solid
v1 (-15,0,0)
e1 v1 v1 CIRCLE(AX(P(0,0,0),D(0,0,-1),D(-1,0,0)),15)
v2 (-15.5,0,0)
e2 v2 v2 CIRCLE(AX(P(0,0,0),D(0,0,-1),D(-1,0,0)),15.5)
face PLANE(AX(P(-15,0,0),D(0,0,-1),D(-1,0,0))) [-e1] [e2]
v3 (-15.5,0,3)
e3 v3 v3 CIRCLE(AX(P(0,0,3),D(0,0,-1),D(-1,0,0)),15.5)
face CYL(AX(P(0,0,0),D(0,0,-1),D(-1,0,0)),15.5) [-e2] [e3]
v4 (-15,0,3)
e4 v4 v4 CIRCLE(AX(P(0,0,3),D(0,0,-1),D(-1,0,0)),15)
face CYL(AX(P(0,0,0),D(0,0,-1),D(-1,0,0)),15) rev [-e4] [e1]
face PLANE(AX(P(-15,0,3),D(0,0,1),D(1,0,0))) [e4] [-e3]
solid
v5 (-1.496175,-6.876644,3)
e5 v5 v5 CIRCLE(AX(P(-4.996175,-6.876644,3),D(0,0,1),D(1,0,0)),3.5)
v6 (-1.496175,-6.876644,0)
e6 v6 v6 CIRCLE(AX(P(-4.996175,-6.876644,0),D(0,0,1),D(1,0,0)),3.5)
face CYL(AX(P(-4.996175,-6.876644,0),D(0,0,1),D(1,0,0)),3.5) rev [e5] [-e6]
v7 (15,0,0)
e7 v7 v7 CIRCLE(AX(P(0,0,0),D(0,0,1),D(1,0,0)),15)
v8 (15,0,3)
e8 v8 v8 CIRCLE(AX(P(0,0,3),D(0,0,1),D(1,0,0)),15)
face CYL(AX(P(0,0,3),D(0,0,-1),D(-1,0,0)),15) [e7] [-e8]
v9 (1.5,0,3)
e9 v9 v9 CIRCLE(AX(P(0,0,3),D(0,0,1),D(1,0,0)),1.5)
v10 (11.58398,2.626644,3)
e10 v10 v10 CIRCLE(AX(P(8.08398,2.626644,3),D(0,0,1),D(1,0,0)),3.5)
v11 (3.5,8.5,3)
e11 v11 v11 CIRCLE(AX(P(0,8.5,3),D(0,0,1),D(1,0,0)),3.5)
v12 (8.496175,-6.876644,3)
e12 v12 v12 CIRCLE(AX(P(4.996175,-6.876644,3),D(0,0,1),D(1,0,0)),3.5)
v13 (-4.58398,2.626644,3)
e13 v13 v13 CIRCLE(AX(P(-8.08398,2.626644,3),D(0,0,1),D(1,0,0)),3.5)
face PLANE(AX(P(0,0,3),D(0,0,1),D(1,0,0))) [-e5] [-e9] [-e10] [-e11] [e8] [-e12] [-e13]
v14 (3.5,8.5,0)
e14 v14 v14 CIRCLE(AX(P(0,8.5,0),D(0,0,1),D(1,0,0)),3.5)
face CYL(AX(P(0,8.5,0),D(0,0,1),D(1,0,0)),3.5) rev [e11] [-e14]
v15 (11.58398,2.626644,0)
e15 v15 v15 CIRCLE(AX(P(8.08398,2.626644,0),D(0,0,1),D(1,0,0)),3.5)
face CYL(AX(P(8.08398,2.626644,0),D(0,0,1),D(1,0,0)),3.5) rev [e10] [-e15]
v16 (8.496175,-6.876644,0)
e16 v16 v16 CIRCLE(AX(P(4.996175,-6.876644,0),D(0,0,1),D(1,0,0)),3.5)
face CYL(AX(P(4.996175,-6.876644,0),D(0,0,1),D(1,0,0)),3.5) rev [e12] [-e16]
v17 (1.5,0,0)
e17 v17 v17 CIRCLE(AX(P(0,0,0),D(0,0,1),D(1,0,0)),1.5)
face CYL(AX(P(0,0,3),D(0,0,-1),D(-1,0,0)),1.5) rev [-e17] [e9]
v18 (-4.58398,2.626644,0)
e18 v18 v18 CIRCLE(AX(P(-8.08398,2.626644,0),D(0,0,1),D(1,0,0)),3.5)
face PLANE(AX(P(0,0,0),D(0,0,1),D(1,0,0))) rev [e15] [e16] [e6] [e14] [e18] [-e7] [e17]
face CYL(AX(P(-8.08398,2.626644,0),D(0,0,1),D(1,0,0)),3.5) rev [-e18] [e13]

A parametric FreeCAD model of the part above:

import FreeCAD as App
import Part
import Sketcher

V = App.Vector


def add_polygon(sketch, points):
    """Adds a closed chain of lines whose ends are joined by coincident constraints."""
    first, n = sketch.GeometryCount, len(points)
    for a, b in zip(points, points[1:] + points[:1]):
        sketch.addGeometry(Part.LineSegment(App.Vector(*a, 0), App.Vector(*b, 0)), False)
    for i in range(n):
        sketch.addConstraint(Sketcher.Constraint("Coincident", first + i, 2, first + (i + 1) % n, 1))

doc = App.newDocument("Part")
body = doc.addObject("PartDesign::Body", "Body")

# Sketch on XY plane
sketch1 = body.newObject("Sketcher::SketchObject", "Sketch")
sketch1.AttachmentSupport = (doc.getObject("XY_Plane"), [""])
sketch1.MapMode = "FlatFace"
sketch1.addGeometry([
    Part.Circle(V(0, 0, 0), V(0, 0, 1), 15),
    Part.Circle(V(0, 0, 0), V(0, 0, 1), 1.5),
], False)
sketch1.addConstraint([
    Sketcher.Constraint("Coincident", 0, 3, -1, 1),
    Sketcher.Constraint("Coincident", 1, 3, -1, 1),
    Sketcher.Constraint("Diameter", 0, 30.0),
    Sketcher.Constraint("Diameter", 1, 3.0),
])
pad1 = body.newObject("PartDesign::Pad", "Pad")
pad1.Profile = sketch1
pad1.Length = 3

# Sketch on XY plane
sketch2 = body.newObject("Sketcher::SketchObject", "Sketch001")
sketch2.AttachmentSupport = (doc.getObject("XY_Plane"), [""])
sketch2.MapMode = "FlatFace"
sketch2.AttachmentOffset = App.Placement(V(0, 0, 3), App.Rotation())
sketch2.addGeometry([
    Part.Circle(V(0, 8.5, 0), V(0, 0, 1), 3.5),  # 0
    Part.Circle(V(8.08398, 2.626644, 0), V(0, 0, 1), 3.5),  # 1
    Part.Circle(V(4.996175, -6.876644, 0), V(0, 0, 1), 3.5),  # 2
    Part.Circle(V(-4.996175, -6.876644, 0), V(0, 0, 1), 3.5),  # 3
    Part.Circle(V(-8.08398, 2.626644, 0), V(0, 0, 1), 3.5),  # 4
], False)
sketch2.addConstraint([
    Sketcher.Constraint("Equal", 0, 1),
    Sketcher.Constraint("Equal", 1, 2),
    Sketcher.Constraint("Equal", 2, 3),
    Sketcher.Constraint("Equal", 3, 4),
    Sketcher.Constraint("Symmetric", 2, 3, 3, 3, -2),
    Sketcher.Constraint("Symmetric", 1, 3, 4, 3, -2),
    Sketcher.Constraint("PointOnObject", 0, 3, -2),
    Sketcher.Constraint("Diameter", 0, 7.0),
    Sketcher.Constraint("DistanceY", -1, 1, 0, 3, 8.5),
    Sketcher.Constraint("DistanceX", -1, 1, 1, 3, 8.08398),
    Sketcher.Constraint("DistanceY", 2, 3, 1, 3, 9.503289),
    Sketcher.Constraint("DistanceX", 3, 3, 2, 3, 9.992349),
    Sketcher.Constraint("DistanceY", -1, 1, 1, 3, 2.626644),
])
pocket1 = body.newObject("PartDesign::Pocket", "Pocket")
pocket1.Profile = sketch2
pocket1.Type = "ThroughAll"
pocket1.Midplane = True
body2 = doc.addObject("PartDesign::Body", "Body001")

# Sketch on XZ plane
sketch3 = body2.newObject("Sketcher::SketchObject", "Sketch002")
sketch3.AttachmentSupport = (doc.getObject("XZ_Plane001"), [""])
sketch3.MapMode = "FlatFace"
add_polygon(sketch3, [(-15.5, 0), (-15.5, 3), (-15, 3), (-15, 0)])  # lines 0-3
sketch3.addConstraint([
    Sketcher.Constraint("Vertical", 0),
    Sketcher.Constraint("Horizontal", 1),
    Sketcher.Constraint("Vertical", 2),
    Sketcher.Constraint("Horizontal", 3),
    Sketcher.Constraint("PointOnObject", 2, 2, -1),
    Sketcher.Constraint("DistanceY", 0, 1, 0, 2, 3.0),
    Sketcher.Constraint("DistanceX", 1, 1, 1, 2, 0.5),
    Sketcher.Constraint("DistanceX", 1, 2, -1, 1, 15.0),
])
revolution = body2.newObject("PartDesign::Revolution", "Revolution")
revolution.Profile = sketch3
revolution.ReferenceAxis = (sketch3, ["V_Axis"])
revolution.Angle = 360

doc.recompute()
